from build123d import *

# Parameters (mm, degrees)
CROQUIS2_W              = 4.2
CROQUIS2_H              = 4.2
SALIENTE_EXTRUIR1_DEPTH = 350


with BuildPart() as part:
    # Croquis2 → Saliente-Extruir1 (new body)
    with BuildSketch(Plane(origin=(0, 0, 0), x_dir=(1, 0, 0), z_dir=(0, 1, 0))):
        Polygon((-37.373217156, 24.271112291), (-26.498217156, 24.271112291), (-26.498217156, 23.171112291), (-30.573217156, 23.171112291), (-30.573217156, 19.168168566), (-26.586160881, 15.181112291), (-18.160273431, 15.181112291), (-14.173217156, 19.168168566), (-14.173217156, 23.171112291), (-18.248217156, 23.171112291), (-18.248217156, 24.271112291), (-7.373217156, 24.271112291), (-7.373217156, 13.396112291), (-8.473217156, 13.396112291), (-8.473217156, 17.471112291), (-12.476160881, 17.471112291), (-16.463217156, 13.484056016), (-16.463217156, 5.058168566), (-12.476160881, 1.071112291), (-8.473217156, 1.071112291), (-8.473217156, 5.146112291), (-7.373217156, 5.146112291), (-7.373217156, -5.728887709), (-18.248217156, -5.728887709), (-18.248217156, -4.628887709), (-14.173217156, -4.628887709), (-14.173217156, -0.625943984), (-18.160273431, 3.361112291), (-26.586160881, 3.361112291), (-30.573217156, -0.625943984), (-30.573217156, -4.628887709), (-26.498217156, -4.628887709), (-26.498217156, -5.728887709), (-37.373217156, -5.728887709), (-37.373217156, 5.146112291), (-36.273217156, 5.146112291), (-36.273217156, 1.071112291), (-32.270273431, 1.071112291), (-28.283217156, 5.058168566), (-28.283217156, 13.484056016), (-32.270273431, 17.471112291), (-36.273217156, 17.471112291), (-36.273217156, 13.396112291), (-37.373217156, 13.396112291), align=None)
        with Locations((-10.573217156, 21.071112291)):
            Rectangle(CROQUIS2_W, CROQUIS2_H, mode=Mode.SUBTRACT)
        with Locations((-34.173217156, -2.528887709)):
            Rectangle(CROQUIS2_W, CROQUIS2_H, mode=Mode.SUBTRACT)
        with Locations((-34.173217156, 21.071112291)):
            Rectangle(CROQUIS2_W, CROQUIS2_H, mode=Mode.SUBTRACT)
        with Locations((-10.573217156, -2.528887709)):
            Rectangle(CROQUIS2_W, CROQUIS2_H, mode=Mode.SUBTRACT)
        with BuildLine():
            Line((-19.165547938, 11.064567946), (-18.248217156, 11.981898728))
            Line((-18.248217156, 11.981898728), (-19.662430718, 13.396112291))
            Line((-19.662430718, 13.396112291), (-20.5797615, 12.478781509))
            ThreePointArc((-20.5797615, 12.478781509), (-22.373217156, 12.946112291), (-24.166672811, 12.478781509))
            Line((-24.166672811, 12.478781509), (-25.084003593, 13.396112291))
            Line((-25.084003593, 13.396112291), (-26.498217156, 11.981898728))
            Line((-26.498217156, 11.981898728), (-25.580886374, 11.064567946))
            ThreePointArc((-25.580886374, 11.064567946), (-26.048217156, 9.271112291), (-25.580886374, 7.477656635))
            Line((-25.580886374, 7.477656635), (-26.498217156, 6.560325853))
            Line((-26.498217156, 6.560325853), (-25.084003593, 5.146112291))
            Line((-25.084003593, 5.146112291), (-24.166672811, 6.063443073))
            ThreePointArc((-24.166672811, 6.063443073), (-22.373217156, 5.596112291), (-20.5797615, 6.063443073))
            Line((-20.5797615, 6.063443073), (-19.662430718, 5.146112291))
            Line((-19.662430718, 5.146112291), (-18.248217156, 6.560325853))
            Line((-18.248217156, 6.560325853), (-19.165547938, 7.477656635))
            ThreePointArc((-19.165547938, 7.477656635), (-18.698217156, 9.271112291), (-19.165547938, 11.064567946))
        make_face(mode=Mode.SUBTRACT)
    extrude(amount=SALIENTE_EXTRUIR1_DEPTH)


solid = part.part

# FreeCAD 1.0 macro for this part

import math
import FreeCAD as App
import Part
import Sketcher
from FreeCAD import Vector

doc = App.newDocument("Part")
body = doc.addObject("PartDesign::Body", "Body")

sketch1 = doc.addObject("Sketcher::SketchObject", "Sketch")
body.addObject(sketch1)
sketch1.AttachmentSupport = (doc.XZ_Plane, [""])
sketch1.MapMode = "FlatFace"
sketch1.addGeometry([
    Part.LineSegment(Vector(-26.5, -24.3, 0), Vector(-37.4, -24.3, 0)),
    Part.LineSegment(Vector(-37.4, -24.3, 0), Vector(-37.4, -13.4, 0)),
    Part.LineSegment(Vector(-37.4, -13.4, 0), Vector(-36.3, -13.4, 0)),
    Part.LineSegment(Vector(-36.3, -13.4, 0), Vector(-36.3, -17.5, 0)),
    Part.LineSegment(Vector(-36.3, -17.5, 0), Vector(-32.3, -17.5, 0)),
    Part.LineSegment(Vector(-32.3, -17.5, 0), Vector(-28.3, -13.5, 0)),
    Part.LineSegment(Vector(-28.3, -13.5, 0), Vector(-28.3, -5.1, 0)),
    Part.LineSegment(Vector(-28.3, -5.1, 0), Vector(-32.3, -1.1, 0)),
    Part.LineSegment(Vector(-32.3, -1.1, 0), Vector(-36.3, -1.1, 0)),
    Part.LineSegment(Vector(-36.3, -1.1, 0), Vector(-36.3, -5.1, 0)),
    Part.LineSegment(Vector(-36.3, -5.1, 0), Vector(-37.4, -5.1, 0)),
    Part.LineSegment(Vector(-37.4, -5.1, 0), Vector(-37.4, 5.7, 0)),
    Part.LineSegment(Vector(-37.4, 5.7, 0), Vector(-26.5, 5.7, 0)),
    Part.LineSegment(Vector(-26.5, 5.7, 0), Vector(-26.5, 4.6, 0)),
    Part.LineSegment(Vector(-26.5, 4.6, 0), Vector(-30.6, 4.6, 0)),
    Part.LineSegment(Vector(-30.6, 4.6, 0), Vector(-30.6, 0.6, 0)),
    Part.LineSegment(Vector(-30.6, 0.6, 0), Vector(-26.6, -3.4, 0)),
    Part.LineSegment(Vector(-26.6, -3.4, 0), Vector(-18.2, -3.4, 0)),
    Part.LineSegment(Vector(-18.2, -3.4, 0), Vector(-14.2, 0.6, 0)),
    Part.LineSegment(Vector(-14.2, 0.6, 0), Vector(-14.2, 4.6, 0)),
    Part.LineSegment(Vector(-14.2, 4.6, 0), Vector(-18.2, 4.6, 0)),
    Part.LineSegment(Vector(-18.2, 4.6, 0), Vector(-18.2, 5.7, 0)),
    Part.LineSegment(Vector(-18.2, 5.7, 0), Vector(-7.4, 5.7, 0)),
    Part.LineSegment(Vector(-7.4, 5.7, 0), Vector(-7.4, -5.1, 0)),
    Part.LineSegment(Vector(-7.4, -5.1, 0), Vector(-8.5, -5.1, 0)),
    Part.LineSegment(Vector(-8.5, -5.1, 0), Vector(-8.5, -1.1, 0)),
    Part.LineSegment(Vector(-8.5, -1.1, 0), Vector(-12.5, -1.1, 0)),
    Part.LineSegment(Vector(-12.5, -1.1, 0), Vector(-16.5, -5.1, 0)),
    Part.LineSegment(Vector(-16.5, -5.1, 0), Vector(-16.5, -13.5, 0)),
    Part.LineSegment(Vector(-16.5, -13.5, 0), Vector(-12.5, -17.5, 0)),
    Part.LineSegment(Vector(-12.5, -17.5, 0), Vector(-8.5, -17.5, 0)),
    Part.LineSegment(Vector(-8.5, -17.5, 0), Vector(-8.5, -13.4, 0)),
    Part.LineSegment(Vector(-8.5, -13.4, 0), Vector(-7.4, -13.4, 0)),
    Part.LineSegment(Vector(-7.4, -13.4, 0), Vector(-7.4, -24.3, 0)),
    Part.LineSegment(Vector(-7.4, -24.3, 0), Vector(-18.2, -24.3, 0)),
    Part.LineSegment(Vector(-18.2, -24.3, 0), Vector(-18.2, -23.2, 0)),
    Part.LineSegment(Vector(-18.2, -23.2, 0), Vector(-14.2, -23.2, 0)),
    Part.LineSegment(Vector(-14.2, -23.2, 0), Vector(-14.2, -19.2, 0)),
    Part.LineSegment(Vector(-14.2, -19.2, 0), Vector(-18.2, -15.2, 0)),
    Part.LineSegment(Vector(-18.2, -15.2, 0), Vector(-26.6, -15.2, 0)),
    Part.LineSegment(Vector(-26.6, -15.2, 0), Vector(-30.6, -19.2, 0)),
    Part.LineSegment(Vector(-30.6, -19.2, 0), Vector(-30.6, -23.2, 0)),
    Part.LineSegment(Vector(-30.6, -23.2, 0), Vector(-26.5, -23.2, 0)),
    Part.LineSegment(Vector(-26.5, -23.2, 0), Vector(-26.5, -24.3, 0)),
    Part.LineSegment(Vector(-12.7, 4.6, 0), Vector(-12.7, 0.4, 0)),
    Part.LineSegment(Vector(-12.7, 0.4, 0), Vector(-8.5, 0.4, 0)),
    Part.LineSegment(Vector(-8.5, 0.4, 0), Vector(-8.5, 4.6, 0)),
    Part.LineSegment(Vector(-8.5, 4.6, 0), Vector(-12.7, 4.6, 0)),
    Part.LineSegment(Vector(-36.3, 4.6, 0), Vector(-36.3, 0.4, 0)),
    Part.LineSegment(Vector(-36.3, 0.4, 0), Vector(-32.1, 0.4, 0)),
    Part.LineSegment(Vector(-32.1, 0.4, 0), Vector(-32.1, 4.6, 0)),
    Part.LineSegment(Vector(-32.1, 4.6, 0), Vector(-36.3, 4.6, 0)),
    Part.ArcOfCircle(Part.Circle(Vector(-22.4, -9.3, 0), Vector(0, 0, 1), 3.7), math.radians(-29), math.radians(29)),
    Part.LineSegment(Vector(-19.2, -7.5, 0), Vector(-18.2, -6.6, 0)),
    Part.LineSegment(Vector(-18.2, -6.6, 0), Vector(-19.7, -5.1, 0)),
    Part.LineSegment(Vector(-19.7, -5.1, 0), Vector(-20.6, -6.1, 0)),
    Part.ArcOfCircle(Part.Circle(Vector(-22.4, -9.3, 0), Vector(0, 0, 1), 3.7), math.radians(61), math.radians(119)),
    Part.LineSegment(Vector(-24.2, -6.1, 0), Vector(-25.1, -5.1, 0)),
    Part.LineSegment(Vector(-25.1, -5.1, 0), Vector(-26.5, -6.6, 0)),
    Part.LineSegment(Vector(-26.5, -6.6, 0), Vector(-25.6, -7.5, 0)),
    Part.ArcOfCircle(Part.Circle(Vector(-22.4, -9.3, 0), Vector(0, 0, 1), 3.7), math.radians(151), math.radians(209)),
    Part.LineSegment(Vector(-25.6, -11.1, 0), Vector(-26.5, -12, 0)),
    Part.LineSegment(Vector(-26.5, -12, 0), Vector(-25.1, -13.4, 0)),
    Part.LineSegment(Vector(-25.1, -13.4, 0), Vector(-24.2, -12.5, 0)),
    Part.ArcOfCircle(Part.Circle(Vector(-22.4, -9.3, 0), Vector(0, 0, 1), 3.7), math.radians(-119), math.radians(-61)),
    Part.LineSegment(Vector(-20.6, -12.5, 0), Vector(-19.7, -13.4, 0)),
    Part.LineSegment(Vector(-19.7, -13.4, 0), Vector(-18.2, -12, 0)),
    Part.LineSegment(Vector(-18.2, -12, 0), Vector(-19.2, -11.1, 0)),
    Part.LineSegment(Vector(-12.7, -19, 0), Vector(-12.7, -23.2, 0)),
    Part.LineSegment(Vector(-12.7, -23.2, 0), Vector(-8.5, -23.2, 0)),
    Part.LineSegment(Vector(-8.5, -23.2, 0), Vector(-8.5, -19, 0)),
    Part.LineSegment(Vector(-8.5, -19, 0), Vector(-12.7, -19, 0)),
    Part.LineSegment(Vector(-36.3, -19, 0), Vector(-36.3, -23.2, 0)),
    Part.LineSegment(Vector(-36.3, -23.2, 0), Vector(-32.1, -23.2, 0)),
    Part.LineSegment(Vector(-32.1, -23.2, 0), Vector(-32.1, -19, 0)),
    Part.LineSegment(Vector(-32.1, -19, 0), Vector(-36.3, -19, 0)),
], False)
sketch1.addConstraint([
    Sketcher.Constraint("Coincident", 0, 2, 1, 1),
    Sketcher.Constraint("Coincident", 1, 2, 2, 1),
    Sketcher.Constraint("Coincident", 2, 2, 3, 1),
    Sketcher.Constraint("Coincident", 3, 2, 4, 1),
    Sketcher.Constraint("Coincident", 4, 2, 5, 1),
    Sketcher.Constraint("Coincident", 5, 2, 6, 1),
    Sketcher.Constraint("Coincident", 6, 2, 7, 1),
    Sketcher.Constraint("Coincident", 7, 2, 8, 1),
    Sketcher.Constraint("Coincident", 8, 2, 9, 1),
    Sketcher.Constraint("Coincident", 9, 2, 10, 1),
    Sketcher.Constraint("Coincident", 10, 2, 11, 1),
    Sketcher.Constraint("Coincident", 11, 2, 12, 1),
    Sketcher.Constraint("Coincident", 12, 2, 13, 1),
    Sketcher.Constraint("Coincident", 13, 2, 14, 1),
    Sketcher.Constraint("Coincident", 14, 2, 15, 1),
    Sketcher.Constraint("Coincident", 15, 2, 16, 1),
    Sketcher.Constraint("Coincident", 16, 2, 17, 1),
    Sketcher.Constraint("Coincident", 17, 2, 18, 1),
    Sketcher.Constraint("Coincident", 18, 2, 19, 1),
    Sketcher.Constraint("Coincident", 19, 2, 20, 1),
    Sketcher.Constraint("Coincident", 20, 2, 21, 1),
    Sketcher.Constraint("Coincident", 21, 2, 22, 1),
    Sketcher.Constraint("Coincident", 22, 2, 23, 1),
    Sketcher.Constraint("Coincident", 23, 2, 24, 1),
    Sketcher.Constraint("Coincident", 24, 2, 25, 1),
    Sketcher.Constraint("Coincident", 25, 2, 26, 1),
    Sketcher.Constraint("Coincident", 26, 2, 27, 1),
    Sketcher.Constraint("Coincident", 27, 2, 28, 1),
    Sketcher.Constraint("Coincident", 28, 2, 29, 1),
    Sketcher.Constraint("Coincident", 29, 2, 30, 1),
    Sketcher.Constraint("Coincident", 30, 2, 31, 1),
    Sketcher.Constraint("Coincident", 31, 2, 32, 1),
    Sketcher.Constraint("Coincident", 32, 2, 33, 1),
    Sketcher.Constraint("Coincident", 33, 2, 34, 1),
    Sketcher.Constraint("Coincident", 34, 2, 35, 1),
    Sketcher.Constraint("Coincident", 35, 2, 36, 1),
    Sketcher.Constraint("Coincident", 36, 2, 37, 1),
    Sketcher.Constraint("Coincident", 37, 2, 38, 1),
    Sketcher.Constraint("Coincident", 38, 2, 39, 1),
    Sketcher.Constraint("Coincident", 39, 2, 40, 1),
    Sketcher.Constraint("Coincident", 40, 2, 41, 1),
    Sketcher.Constraint("Coincident", 41, 2, 42, 1),
    Sketcher.Constraint("Coincident", 42, 2, 43, 1),
    Sketcher.Constraint("Coincident", 43, 2, 0, 1),
    Sketcher.Constraint("Coincident", 44, 2, 45, 1),
    Sketcher.Constraint("Coincident", 45, 2, 46, 1),
    Sketcher.Constraint("Coincident", 46, 2, 47, 1),
    Sketcher.Constraint("Coincident", 47, 2, 44, 1),
    Sketcher.Constraint("Coincident", 48, 2, 49, 1),
    Sketcher.Constraint("Coincident", 49, 2, 50, 1),
    Sketcher.Constraint("Coincident", 50, 2, 51, 1),
    Sketcher.Constraint("Coincident", 51, 2, 48, 1),
    Sketcher.Constraint("Coincident", 52, 2, 53, 1),
    Sketcher.Constraint("Coincident", 53, 2, 54, 1),
    Sketcher.Constraint("Coincident", 54, 2, 55, 1),
    Sketcher.Constraint("Coincident", 55, 2, 56, 1),
    Sketcher.Constraint("Coincident", 56, 2, 57, 1),
    Sketcher.Constraint("Coincident", 57, 2, 58, 1),
    Sketcher.Constraint("Coincident", 58, 2, 59, 1),
    Sketcher.Constraint("Coincident", 59, 2, 60, 1),
    Sketcher.Constraint("Coincident", 60, 2, 61, 1),
    Sketcher.Constraint("Coincident", 61, 2, 62, 1),
    Sketcher.Constraint("Coincident", 62, 2, 63, 1),
    Sketcher.Constraint("Coincident", 63, 2, 64, 1),
    Sketcher.Constraint("Coincident", 64, 2, 65, 1),
    Sketcher.Constraint("Coincident", 65, 2, 66, 1),
    Sketcher.Constraint("Coincident", 66, 2, 67, 1),
    Sketcher.Constraint("Coincident", 67, 2, 52, 1),
    Sketcher.Constraint("Coincident", 68, 2, 69, 1),
    Sketcher.Constraint("Coincident", 69, 2, 70, 1),
    Sketcher.Constraint("Coincident", 70, 2, 71, 1),
    Sketcher.Constraint("Coincident", 71, 2, 68, 1),
    Sketcher.Constraint("Coincident", 72, 2, 73, 1),
    Sketcher.Constraint("Coincident", 73, 2, 74, 1),
    Sketcher.Constraint("Coincident", 74, 2, 75, 1),
    Sketcher.Constraint("Coincident", 75, 2, 72, 1),
    Sketcher.Constraint("Horizontal", 0),
    Sketcher.Constraint("Vertical", 1),
    Sketcher.Constraint("Horizontal", 2),
    Sketcher.Constraint("Vertical", 3),
    Sketcher.Constraint("Horizontal", 4),
    Sketcher.Constraint("Vertical", 6),
    Sketcher.Constraint("Horizontal", 8),
    Sketcher.Constraint("Vertical", 9),
    Sketcher.Constraint("Horizontal", 10),
    Sketcher.Constraint("Vertical", 11),
    Sketcher.Constraint("Horizontal", 12),
    Sketcher.Constraint("Vertical", 13),
    Sketcher.Constraint("Horizontal", 14),
    Sketcher.Constraint("Vertical", 15),
    Sketcher.Constraint("Horizontal", 17),
    Sketcher.Constraint("Vertical", 19),
    Sketcher.Constraint("Horizontal", 20),
    Sketcher.Constraint("Vertical", 21),
    Sketcher.Constraint("Horizontal", 22),
    Sketcher.Constraint("Vertical", 23),
    Sketcher.Constraint("Horizontal", 24),
    Sketcher.Constraint("Vertical", 25),
    Sketcher.Constraint("Horizontal", 26),
    Sketcher.Constraint("Vertical", 28),
    Sketcher.Constraint("Horizontal", 30),
    Sketcher.Constraint("Vertical", 31),
    Sketcher.Constraint("Horizontal", 32),
    Sketcher.Constraint("Vertical", 33),
    Sketcher.Constraint("Horizontal", 34),
    Sketcher.Constraint("Vertical", 35),
    Sketcher.Constraint("Horizontal", 36),
    Sketcher.Constraint("Vertical", 37),
    Sketcher.Constraint("Horizontal", 39),
    Sketcher.Constraint("Vertical", 41),
    Sketcher.Constraint("Horizontal", 42),
    Sketcher.Constraint("Vertical", 43),
    Sketcher.Constraint("Vertical", 44),
    Sketcher.Constraint("Horizontal", 45),
    Sketcher.Constraint("Vertical", 46),
    Sketcher.Constraint("Horizontal", 47),
    Sketcher.Constraint("Vertical", 48),
    Sketcher.Constraint("Horizontal", 49),
    Sketcher.Constraint("Vertical", 50),
    Sketcher.Constraint("Horizontal", 51),
    Sketcher.Constraint("Vertical", 68),
    Sketcher.Constraint("Horizontal", 69),
    Sketcher.Constraint("Vertical", 70),
    Sketcher.Constraint("Horizontal", 71),
    Sketcher.Constraint("Vertical", 72),
    Sketcher.Constraint("Horizontal", 73),
    Sketcher.Constraint("Vertical", 74),
    Sketcher.Constraint("Horizontal", 75),
    Sketcher.Constraint("Coincident", 56, 3, 52, 3),
    Sketcher.Constraint("Coincident", 60, 3, 52, 3),
    Sketcher.Constraint("Coincident", 64, 3, 52, 3),
    Sketcher.Constraint("Equal", 52, 56),
    Sketcher.Constraint("Equal", 56, 60),
    Sketcher.Constraint("Equal", 60, 64),
    Sketcher.Constraint("Perpendicular", 5, 7),
    Sketcher.Constraint("Parallel", 7, 16),
    Sketcher.Constraint("Perpendicular", 16, 18),
    Sketcher.Constraint("Parallel", 18, 27),
    Sketcher.Constraint("Perpendicular", 27, 29),
    Sketcher.Constraint("Parallel", 29, 38),
    Sketcher.Constraint("Perpendicular", 38, 40),
    Sketcher.Constraint("Parallel", 40, 53),
    Sketcher.Constraint("Perpendicular", 53, 54),
    Sketcher.Constraint("Perpendicular", 54, 55),
    Sketcher.Constraint("Perpendicular", 55, 57),
    Sketcher.Constraint("Perpendicular", 57, 58),
    Sketcher.Constraint("Perpendicular", 58, 59),
    Sketcher.Constraint("Perpendicular", 59, 61),
    Sketcher.Constraint("Perpendicular", 61, 62),
    Sketcher.Constraint("Perpendicular", 62, 63),
    Sketcher.Constraint("Perpendicular", 63, 65),
    Sketcher.Constraint("Perpendicular", 65, 66),
    Sketcher.Constraint("Perpendicular", 66, 67),
    Sketcher.Constraint("Horizontal", 15, 2, 18, 2),
    Sketcher.Constraint("Horizontal", 14, 2, 19, 2),
    Sketcher.Constraint("Horizontal", 12, 2, 21, 2),
    Sketcher.Constraint("Horizontal", 10, 2, 23, 2),
    Sketcher.Constraint("Horizontal", 8, 2, 25, 2),
    Sketcher.Constraint("Horizontal", 6, 2, 27, 2),
    Sketcher.Constraint("Horizontal", 5, 2, 28, 2),
    Sketcher.Constraint("Horizontal", 4, 2, 29, 2),
    Sketcher.Constraint("Horizontal", 2, 2, 31, 2),
    Sketcher.Constraint("Horizontal", 0, 2, 33, 2),
    Sketcher.Constraint("Horizontal", 37, 2, 40, 2),
    Sketcher.Constraint("Horizontal", 36, 2, 41, 2),
    Sketcher.Constraint("Horizontal", 20, 2, 46, 2),
    Sketcher.Constraint("Horizontal", 45, 2, 48, 2),
    Sketcher.Constraint("Horizontal", 47, 2, 50, 2),
    Sketcher.Constraint("Horizontal", 24, 2, 54, 2),
    Sketcher.Constraint("Horizontal", 55, 2, 56, 2),
    Sketcher.Constraint("Horizontal", 54, 2, 57, 2),
    Sketcher.Constraint("Horizontal", 53, 2, 58, 2),
    Sketcher.Constraint("Horizontal", 52, 2, 59, 2),
    Sketcher.Constraint("Horizontal", 32, 2, 62, 2),
    Sketcher.Constraint("Horizontal", 63, 2, 64, 2),
    Sketcher.Constraint("Horizontal", 62, 2, 65, 2),
    Sketcher.Constraint("Horizontal", 61, 2, 66, 2),
    Sketcher.Constraint("Horizontal", 42, 2, 68, 2),
    Sketcher.Constraint("Horizontal", 69, 2, 72, 2),
    Sketcher.Constraint("Horizontal", 71, 2, 74, 2),
    Sketcher.Constraint("Vertical", 4, 2, 7, 2),
    Sketcher.Constraint("Vertical", 3, 2, 8, 2),
    Sketcher.Constraint("Vertical", 1, 2, 10, 2),
    Sketcher.Constraint("Vertical", 25, 2, 30, 2),
    Sketcher.Constraint("Vertical", 23, 2, 32, 2),
    Sketcher.Constraint("Vertical", 21, 2, 34, 2),
    Sketcher.Constraint("Vertical", 19, 2, 36, 2),
    Sketcher.Constraint("Vertical", 17, 2, 38, 2),
    Sketcher.Constraint("Vertical", 16, 2, 39, 2),
    Sketcher.Constraint("Vertical", 13, 2, 42, 2),
    Sketcher.Constraint("Vertical", 31, 2, 45, 2),
    Sketcher.Constraint("Vertical", 9, 2, 48, 2),
    Sketcher.Constraint("Vertical", 35, 2, 53, 2),
    Sketcher.Constraint("Vertical", 43, 2, 58, 2),
    Sketcher.Constraint("Vertical", 59, 2, 60, 2),
    Sketcher.Constraint("Vertical", 58, 2, 61, 2),
    Sketcher.Constraint("Vertical", 57, 2, 62, 2),
    Sketcher.Constraint("Vertical", 47, 2, 68, 2),
    Sketcher.Constraint("Vertical", 46, 2, 69, 2),
    Sketcher.Constraint("Vertical", 51, 2, 72, 2),
    Sketcher.Constraint("Vertical", 50, 2, 73, 2),
    Sketcher.Constraint("Equal", 14, 20),
    Sketcher.Constraint("Equal", 12, 22),
    Sketcher.Constraint("Equal", 10, 24),
    Sketcher.Constraint("Equal", 8, 26),
    Sketcher.Constraint("Equal", 47, 49),
    Sketcher.Constraint("Equal", 34, 1),
    Sketcher.Constraint("Equal", 42, 3),
    Sketcher.Constraint("Equal", 39, 6),
    Sketcher.Constraint("Equal", 3, 9),
    Sketcher.Constraint("Equal", 1, 11),
    Sketcher.Constraint("Equal", 32, 13),
    Sketcher.Constraint("Equal", 30, 15),
    Sketcher.Constraint("Equal", 21, 35),
    Sketcher.Constraint("Equal", 19, 37),
    Sketcher.Constraint("Equal", 75, 44),
    Sketcher.Constraint("Equal", 50, 68),
    Sketcher.Constraint("Equal", 7, 16),
    Sketcher.Constraint("Distance", 54, 2.0),
    Sketcher.Constraint("DistanceX", 2, 1, 2, 2, 1.1),
    Sketcher.Constraint("DistanceX", 45, 1, 45, 2, 4.2),
    Sketcher.Constraint("Radius", 52, 3.675),
    Sketcher.Constraint("DistanceX", 0, 2, 0, 1, 10.875),
    Sketcher.Constraint("DistanceX", 14, 2, 14, 1, 4.075),
    Sketcher.Constraint("Distance", 53, 1.297302),
    Sketcher.Constraint("DistanceY", 61, 2, -1, 1, 11.981899),
    Sketcher.Constraint("Distance", 5, 5.638549),
    Sketcher.Constraint("DistanceX", 4, 1, 4, 2, 4.002944),
    Sketcher.Constraint("DistanceX", 16, 2, -1, 1, 26.586161),
])
pad1 = doc.addObject("PartDesign::Pad", "Pad")
body.addObject(pad1)
pad1.Profile = sketch1
pad1.Length = 350
pad1.Reversed = True

doc.recompute()
